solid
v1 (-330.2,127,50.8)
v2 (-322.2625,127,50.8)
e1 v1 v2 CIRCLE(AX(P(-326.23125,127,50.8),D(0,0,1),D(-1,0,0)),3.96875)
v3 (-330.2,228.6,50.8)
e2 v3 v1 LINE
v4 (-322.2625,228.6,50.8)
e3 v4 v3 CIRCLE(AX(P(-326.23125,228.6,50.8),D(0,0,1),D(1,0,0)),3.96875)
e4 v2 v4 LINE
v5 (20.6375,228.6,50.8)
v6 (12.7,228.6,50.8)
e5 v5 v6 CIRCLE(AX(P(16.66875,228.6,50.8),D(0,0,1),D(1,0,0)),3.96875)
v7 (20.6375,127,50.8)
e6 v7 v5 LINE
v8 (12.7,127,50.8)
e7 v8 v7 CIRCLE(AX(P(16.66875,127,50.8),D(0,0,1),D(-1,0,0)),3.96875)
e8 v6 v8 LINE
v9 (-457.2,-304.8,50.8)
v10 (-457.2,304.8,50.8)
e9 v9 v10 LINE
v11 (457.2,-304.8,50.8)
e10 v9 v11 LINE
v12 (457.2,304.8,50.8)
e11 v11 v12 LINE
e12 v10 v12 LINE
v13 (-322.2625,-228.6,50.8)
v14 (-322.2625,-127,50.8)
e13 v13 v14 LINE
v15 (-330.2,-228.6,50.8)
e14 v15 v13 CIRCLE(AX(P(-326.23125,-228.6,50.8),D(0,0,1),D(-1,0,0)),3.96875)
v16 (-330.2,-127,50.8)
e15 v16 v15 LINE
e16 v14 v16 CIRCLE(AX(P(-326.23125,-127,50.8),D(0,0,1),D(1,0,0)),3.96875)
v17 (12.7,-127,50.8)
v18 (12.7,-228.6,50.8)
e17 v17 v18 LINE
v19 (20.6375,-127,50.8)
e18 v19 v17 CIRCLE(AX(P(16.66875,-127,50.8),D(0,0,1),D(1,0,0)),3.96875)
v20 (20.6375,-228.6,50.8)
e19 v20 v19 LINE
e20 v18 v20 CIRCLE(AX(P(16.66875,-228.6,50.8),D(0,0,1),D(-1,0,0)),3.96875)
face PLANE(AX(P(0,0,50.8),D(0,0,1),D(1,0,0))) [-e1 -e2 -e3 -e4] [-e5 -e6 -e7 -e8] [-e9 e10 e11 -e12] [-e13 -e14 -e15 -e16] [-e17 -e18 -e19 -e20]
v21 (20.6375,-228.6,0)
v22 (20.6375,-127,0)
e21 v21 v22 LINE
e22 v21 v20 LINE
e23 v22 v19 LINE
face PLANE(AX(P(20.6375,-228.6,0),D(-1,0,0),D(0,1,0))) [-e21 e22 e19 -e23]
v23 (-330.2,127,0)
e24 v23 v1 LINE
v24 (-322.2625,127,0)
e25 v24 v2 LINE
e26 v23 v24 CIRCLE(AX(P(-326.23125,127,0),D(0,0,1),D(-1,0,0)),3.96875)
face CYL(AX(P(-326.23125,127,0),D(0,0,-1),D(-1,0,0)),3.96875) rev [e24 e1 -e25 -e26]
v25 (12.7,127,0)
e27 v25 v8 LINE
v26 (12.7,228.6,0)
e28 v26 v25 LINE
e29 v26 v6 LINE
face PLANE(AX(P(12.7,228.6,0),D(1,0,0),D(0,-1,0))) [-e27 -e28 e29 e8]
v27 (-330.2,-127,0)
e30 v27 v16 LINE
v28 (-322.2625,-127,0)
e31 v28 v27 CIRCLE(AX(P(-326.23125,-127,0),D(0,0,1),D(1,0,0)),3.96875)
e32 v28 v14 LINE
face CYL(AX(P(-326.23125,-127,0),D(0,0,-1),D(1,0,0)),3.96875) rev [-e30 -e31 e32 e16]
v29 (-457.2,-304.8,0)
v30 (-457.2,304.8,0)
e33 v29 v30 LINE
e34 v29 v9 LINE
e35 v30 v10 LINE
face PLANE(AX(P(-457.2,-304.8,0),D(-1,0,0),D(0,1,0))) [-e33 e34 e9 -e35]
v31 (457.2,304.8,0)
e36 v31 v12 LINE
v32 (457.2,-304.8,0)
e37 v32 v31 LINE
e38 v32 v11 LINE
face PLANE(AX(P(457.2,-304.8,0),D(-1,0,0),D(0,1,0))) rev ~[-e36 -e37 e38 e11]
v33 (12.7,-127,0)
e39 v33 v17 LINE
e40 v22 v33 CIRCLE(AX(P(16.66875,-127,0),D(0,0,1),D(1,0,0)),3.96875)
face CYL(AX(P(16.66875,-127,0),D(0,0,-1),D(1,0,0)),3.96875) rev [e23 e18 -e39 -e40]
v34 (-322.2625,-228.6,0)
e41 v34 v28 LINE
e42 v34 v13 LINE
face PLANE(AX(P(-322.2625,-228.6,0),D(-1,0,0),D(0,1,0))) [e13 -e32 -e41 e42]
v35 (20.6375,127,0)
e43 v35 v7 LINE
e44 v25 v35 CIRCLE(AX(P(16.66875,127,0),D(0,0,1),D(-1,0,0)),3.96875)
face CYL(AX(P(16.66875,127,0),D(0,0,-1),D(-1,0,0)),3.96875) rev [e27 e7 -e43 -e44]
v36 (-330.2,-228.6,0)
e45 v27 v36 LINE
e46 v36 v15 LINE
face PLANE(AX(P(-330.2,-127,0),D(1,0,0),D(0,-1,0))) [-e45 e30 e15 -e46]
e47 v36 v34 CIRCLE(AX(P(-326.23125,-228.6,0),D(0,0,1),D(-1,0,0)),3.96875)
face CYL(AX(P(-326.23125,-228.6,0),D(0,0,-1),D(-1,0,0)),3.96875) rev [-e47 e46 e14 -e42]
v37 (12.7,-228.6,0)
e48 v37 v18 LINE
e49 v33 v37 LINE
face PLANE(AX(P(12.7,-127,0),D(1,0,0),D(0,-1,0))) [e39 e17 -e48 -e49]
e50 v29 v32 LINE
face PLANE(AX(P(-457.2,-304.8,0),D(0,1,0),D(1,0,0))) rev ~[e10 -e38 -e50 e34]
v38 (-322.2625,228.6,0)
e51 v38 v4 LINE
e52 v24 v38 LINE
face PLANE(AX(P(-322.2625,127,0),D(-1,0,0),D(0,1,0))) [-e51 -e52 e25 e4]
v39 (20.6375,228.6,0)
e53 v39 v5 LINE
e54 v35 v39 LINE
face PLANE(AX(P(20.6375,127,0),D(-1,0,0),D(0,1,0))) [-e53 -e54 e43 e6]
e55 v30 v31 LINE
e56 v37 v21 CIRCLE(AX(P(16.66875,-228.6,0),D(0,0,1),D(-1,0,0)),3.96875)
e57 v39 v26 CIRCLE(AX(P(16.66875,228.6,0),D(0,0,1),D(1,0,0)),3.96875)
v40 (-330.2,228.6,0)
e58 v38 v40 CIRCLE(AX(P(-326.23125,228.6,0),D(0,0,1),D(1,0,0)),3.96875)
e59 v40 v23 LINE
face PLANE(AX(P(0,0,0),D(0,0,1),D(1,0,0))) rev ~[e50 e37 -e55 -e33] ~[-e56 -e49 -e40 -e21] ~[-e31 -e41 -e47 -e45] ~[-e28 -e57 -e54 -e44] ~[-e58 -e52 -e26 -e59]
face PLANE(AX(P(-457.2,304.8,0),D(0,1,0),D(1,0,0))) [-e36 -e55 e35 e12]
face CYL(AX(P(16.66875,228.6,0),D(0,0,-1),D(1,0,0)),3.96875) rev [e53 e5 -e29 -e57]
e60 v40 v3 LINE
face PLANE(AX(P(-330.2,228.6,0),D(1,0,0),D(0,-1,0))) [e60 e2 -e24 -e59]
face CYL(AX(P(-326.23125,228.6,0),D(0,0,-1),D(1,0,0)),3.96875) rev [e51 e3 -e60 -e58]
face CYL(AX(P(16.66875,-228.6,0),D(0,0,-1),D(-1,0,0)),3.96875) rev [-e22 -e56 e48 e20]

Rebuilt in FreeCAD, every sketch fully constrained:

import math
import FreeCAD as App
import Part
import Sketcher
Q = App.Units.Quantity


def add_polygon(sketch, points):
    """Adds a closed chain of lines whose ends are joined by coincident constraints."""
    first, n = sketch.GeometryCount, len(points)
    for a, b in zip(points, points[1:] + points[:1]):
        sketch.addGeometry(Part.LineSegment(App.Vector(*a, 0), App.Vector(*b, 0)), False)
    for i in range(n):
        sketch.addConstraint(Sketcher.Constraint("Coincident", first + i, 2, first + (i + 1) % n, 1))

doc = App.newDocument("Part")
body = doc.addObject("PartDesign::Body", "Body")

sketch1 = body.newObject("Sketcher::SketchObject", "Sketch")
sketch1.AttachmentSupport = (doc.getObject("XY_Plane"), [""])
sketch1.MapMode = "FlatFace"
add_polygon(sketch1, [(-457, 305), (-457, -305), (457, -305), (457, 305)])
sketch1.addConstraint(Sketcher.Constraint("Vertical", 0))
sketch1.addConstraint(Sketcher.Constraint("Horizontal", 1))
sketch1.addConstraint(Sketcher.Constraint("Vertical", 2))
sketch1.addConstraint(Sketcher.Constraint("Horizontal", 3))
sketch1.addConstraint(Sketcher.Constraint("Symmetric", 0, 2, 2, 2, -1, 1))
sketch1.addConstraint(Sketcher.Constraint("DistanceX", 1, 1, 1, 2, Q("36 in")))
sketch1.addConstraint(Sketcher.Constraint("DistanceY", 0, 2, 0, 1, Q("24 in")))
pad1 = body.newObject("PartDesign::Pad", "Pad")
pad1.Profile = sketch1
pad1.Length = Q("2 in")

sketch2 = body.newObject("Sketcher::SketchObject", "Sketch001")
sketch2.AttachmentSupport = (doc.getObject("XY_Plane"), [""])
sketch2.MapMode = "FlatFace"
sketch2.addGeometry(Part.LineSegment(App.Vector(-322.3, 127, 0), App.Vector(-322.3, 228.6, 0)), False)
sketch2.addGeometry(Part.ArcOfCircle(Part.Circle(App.Vector(-326.2, 228.6, 0), App.Vector(0, 0, 1), 4), math.radians(0), math.radians(180)), False)
sketch2.addGeometry(Part.LineSegment(App.Vector(-330.2, 228.6, 0), App.Vector(-330.2, 127, 0)), False)
sketch2.addGeometry(Part.ArcOfCircle(Part.Circle(App.Vector(-326.2, 127, 0), App.Vector(0, 0, 1), 4), math.radians(180), math.radians(360)), False)
sketch2.addGeometry(Part.LineSegment(App.Vector(20.6, 127, 0), App.Vector(20.6, 228.6, 0)), False)
sketch2.addGeometry(Part.ArcOfCircle(Part.Circle(App.Vector(16.7, 228.6, 0), App.Vector(0, 0, 1), 4), math.radians(0), math.radians(180)), False)
sketch2.addGeometry(Part.LineSegment(App.Vector(12.7, 228.6, 0), App.Vector(12.7, 127, 0)), False)
sketch2.addGeometry(Part.ArcOfCircle(Part.Circle(App.Vector(16.7, 127, 0), App.Vector(0, 0, 1), 4), math.radians(180), math.radians(360)), False)
sketch2.addGeometry(Part.LineSegment(App.Vector(-322.3, -228.6, 0), App.Vector(-322.3, -127, 0)), False)
sketch2.addGeometry(Part.ArcOfCircle(Part.Circle(App.Vector(-326.2, -127, 0), App.Vector(0, 0, 1), 4), math.radians(0), math.radians(180)), False)
sketch2.addGeometry(Part.LineSegment(App.Vector(-330.2, -127, 0), App.Vector(-330.2, -228.6, 0)), False)
sketch2.addGeometry(Part.ArcOfCircle(Part.Circle(App.Vector(-326.2, -228.6, 0), App.Vector(0, 0, 1), 4), math.radians(180), math.radians(360)), False)
sketch2.addGeometry(Part.LineSegment(App.Vector(20.6, -228.6, 0), App.Vector(20.6, -127, 0)), False)
sketch2.addGeometry(Part.ArcOfCircle(Part.Circle(App.Vector(16.7, -127, 0), App.Vector(0, 0, 1), 4), math.radians(0), math.radians(180)), False)
sketch2.addGeometry(Part.LineSegment(App.Vector(12.7, -127, 0), App.Vector(12.7, -228.6, 0)), False)
sketch2.addGeometry(Part.ArcOfCircle(Part.Circle(App.Vector(16.7, -228.6, 0), App.Vector(0, 0, 1), 4), math.radians(180), math.radians(360)), False)
sketch2.addConstraint(Sketcher.Constraint("Tangent", 0, 2, 1, 1))
sketch2.addConstraint(Sketcher.Constraint("Tangent", 1, 2, 2, 1))
sketch2.addConstraint(Sketcher.Constraint("Tangent", 2, 2, 3, 1))
sketch2.addConstraint(Sketcher.Constraint("Tangent", 3, 2, 0, 1))
sketch2.addConstraint(Sketcher.Constraint("Tangent", 4, 2, 5, 1))
sketch2.addConstraint(Sketcher.Constraint("Tangent", 5, 2, 6, 1))
sketch2.addConstraint(Sketcher.Constraint("Tangent", 6, 2, 7, 1))
sketch2.addConstraint(Sketcher.Constraint("Tangent", 7, 2, 4, 1))
sketch2.addConstraint(Sketcher.Constraint("Tangent", 8, 2, 9, 1))
sketch2.addConstraint(Sketcher.Constraint("Tangent", 9, 2, 10, 1))
sketch2.addConstraint(Sketcher.Constraint("Tangent", 10, 2, 11, 1))
sketch2.addConstraint(Sketcher.Constraint("Tangent", 11, 2, 8, 1))
sketch2.addConstraint(Sketcher.Constraint("Tangent", 12, 2, 13, 1))
sketch2.addConstraint(Sketcher.Constraint("Tangent", 13, 2, 14, 1))
sketch2.addConstraint(Sketcher.Constraint("Tangent", 14, 2, 15, 1))
sketch2.addConstraint(Sketcher.Constraint("Tangent", 15, 2, 12, 1))
sketch2.addConstraint(Sketcher.Constraint("Vertical", 0))
sketch2.addConstraint(Sketcher.Constraint("Vertical", 2))
sketch2.addConstraint(Sketcher.Constraint("Vertical", 4))
sketch2.addConstraint(Sketcher.Constraint("Vertical", 6))
sketch2.addConstraint(Sketcher.Constraint("Vertical", 8))
sketch2.addConstraint(Sketcher.Constraint("Vertical", 10))
sketch2.addConstraint(Sketcher.Constraint("Vertical", 12))
sketch2.addConstraint(Sketcher.Constraint("Vertical", 14))
sketch2.addConstraint(Sketcher.Constraint("Equal", 3, 5))
sketch2.addConstraint(Sketcher.Constraint("Equal", 7, 9))
sketch2.addConstraint(Sketcher.Constraint("Equal", 11, 13))
sketch2.addConstraint(Sketcher.Constraint("Symmetric", 3, 3, 9, 3, -1))
sketch2.addConstraint(Sketcher.Constraint("Symmetric", 7, 3, 13, 3, -1))
sketch2.addConstraint(Sketcher.Constraint("Horizontal", 1, 3, 5, 3))
sketch2.addConstraint(Sketcher.Constraint("Horizontal", 3, 3, 7, 3))
sketch2.addConstraint(Sketcher.Constraint("Horizontal", 11, 3, 15, 3))
sketch2.addConstraint(Sketcher.Constraint("Equal", 6, 8))
sketch2.addConstraint(Sketcher.Constraint("DistanceY", 0, 1, 0, 2, Q("4 in")))
sketch2.addConstraint(Sketcher.Constraint("DistanceY", -1, 1, 1, 3, Q("9 in")))
sketch2.addConstraint(Sketcher.Constraint("DistanceX", 1, 2, -1, 1, Q("13 in")))
sketch2.addConstraint(Sketcher.Constraint("Radius", 1, Q("0.15625 in")))
sketch2.addConstraint(Sketcher.Constraint("DistanceX", -1, 1, 5, 2, Q("0.5 in")))
pocket1 = body.newObject("PartDesign::Pocket", "Pocket")
pocket1.Profile = sketch2
pocket1.Length = Q("2 in")
pocket1.Reversed = True

doc.recompute()
